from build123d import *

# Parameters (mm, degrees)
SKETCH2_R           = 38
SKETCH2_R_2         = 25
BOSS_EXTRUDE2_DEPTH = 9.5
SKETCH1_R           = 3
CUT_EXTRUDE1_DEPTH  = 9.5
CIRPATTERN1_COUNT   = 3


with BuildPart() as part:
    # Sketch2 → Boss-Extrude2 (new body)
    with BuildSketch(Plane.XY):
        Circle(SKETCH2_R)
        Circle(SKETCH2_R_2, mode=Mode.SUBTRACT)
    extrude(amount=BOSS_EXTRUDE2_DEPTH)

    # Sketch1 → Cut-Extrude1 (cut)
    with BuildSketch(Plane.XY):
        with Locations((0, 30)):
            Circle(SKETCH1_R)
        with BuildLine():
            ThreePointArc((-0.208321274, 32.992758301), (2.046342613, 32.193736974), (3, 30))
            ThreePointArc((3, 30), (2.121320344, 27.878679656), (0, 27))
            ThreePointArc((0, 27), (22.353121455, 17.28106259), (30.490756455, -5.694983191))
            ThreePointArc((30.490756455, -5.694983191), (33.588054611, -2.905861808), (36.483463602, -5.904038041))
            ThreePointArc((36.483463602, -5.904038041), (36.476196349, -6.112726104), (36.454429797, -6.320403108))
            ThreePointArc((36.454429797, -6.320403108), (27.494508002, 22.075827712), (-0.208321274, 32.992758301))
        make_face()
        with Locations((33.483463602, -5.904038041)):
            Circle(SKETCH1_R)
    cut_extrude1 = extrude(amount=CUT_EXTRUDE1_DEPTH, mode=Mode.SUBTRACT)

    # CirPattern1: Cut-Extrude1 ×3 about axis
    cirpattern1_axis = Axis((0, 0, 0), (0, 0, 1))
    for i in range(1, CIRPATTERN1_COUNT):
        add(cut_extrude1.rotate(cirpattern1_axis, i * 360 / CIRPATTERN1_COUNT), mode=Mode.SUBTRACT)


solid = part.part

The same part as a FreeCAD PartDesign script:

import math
import FreeCAD as App
import Part
import Sketcher
Q = App.Units.Quantity

doc = App.newDocument("Part")
body = doc.addObject("PartDesign::Body", "Body")

# Sketch on XY plane
sketch1 = body.newObject("Sketcher::SketchObject", "Sketch")
sketch1.AttachmentSupport = (doc.getObject("XY_Plane"), [""])
sketch1.MapMode = "FlatFace"
sketch1.addGeometry([
    Part.Circle(App.Vector(0, 0, 0), App.Vector(0, 0, 1), 38),
    Part.Circle(App.Vector(0, 0, 0), App.Vector(0, 0, 1), 25),
], False)
sketch1.addConstraint([
    Sketcher.Constraint("Coincident", 0, 3, -1, 1),
    Sketcher.Constraint("Coincident", 1, 3, -1, 1),
    Sketcher.Constraint("Diameter", 0, Q("76 mm")),
    Sketcher.Constraint("Diameter", 1, Q("50 mm")),
])
pad1 = body.newObject("PartDesign::Pad", "Pad")
pad1.Profile = sketch1
pad1.Length = 9.5

# Sketch on XY plane
sketch2 = body.newObject("Sketcher::SketchObject", "Sketch001")
sketch2.AttachmentSupport = (doc.getObject("XY_Plane"), [""])
sketch2.MapMode = "FlatFace"
sketch2.addGeometry([
    Part.ArcOfCircle(Part.Circle(App.Vector(0, 30, 0), App.Vector(0, 0, 1), 3), math.radians(93.981848), math.radians(270)),
    Part.ArcOfCircle(Part.Circle(App.Vector(0, -3.565059, 0), App.Vector(0, 0, 1), 30.565059), math.radians(-3.995892), math.radians(90)),
    Part.ArcOfCircle(Part.Circle(App.Vector(33.483464, -5.904038, 0), App.Vector(0, 0, 1), 3), math.radians(176.004108), math.radians(352.02226)),
    Part.ArcOfCircle(Part.Circle(App.Vector(2.193988, -1.518985, 0), App.Vector(0, 0, 1), 34.595253), math.radians(-7.97774), math.radians(93.981848)),
], False)
sketch2.addConstraint([
    Sketcher.Constraint("Tangent", 0, 2, 1, 2),
    Sketcher.Constraint("Tangent", 1, 1, 2, 1),
    Sketcher.Constraint("Tangent", 2, 2, 3, 1),
    Sketcher.Constraint("Tangent", 3, 2, 0, 1),
    Sketcher.Constraint("Equal", 0, 2),
    Sketcher.Constraint("PointOnObject", 0, 3, -2),
    Sketcher.Constraint("PointOnObject", 1, 3, -2),
    Sketcher.Constraint("Radius", 0, Q("3 mm")),
    Sketcher.Constraint("DistanceY", -1, 1, 0, 3, Q("30 mm")),
    Sketcher.Constraint("Radius", 1, Q("30.565059 mm")),
    Sketcher.Constraint("Radius", 3, Q("34.595253 mm")),
    Sketcher.Constraint("DistanceY", 1, 1, 3, 3, Q("4.175998 mm")),
])
pocket1 = body.newObject("PartDesign::Pocket", "Pocket")
pocket1.Profile = sketch2
pocket1.Length = 9.5
pocket1.Reversed = True
doc.recompute()

polarpattern = body.newObject("PartDesign::PolarPattern", "PolarPattern")
polarpattern.Originals = [pocket1]
polarpattern.Axis = (doc.getObject("Z_Axis"), [""])
polarpattern.Angle = 360
polarpattern.Occurrences = 3
body.Tip = polarpattern

doc.recompute()
